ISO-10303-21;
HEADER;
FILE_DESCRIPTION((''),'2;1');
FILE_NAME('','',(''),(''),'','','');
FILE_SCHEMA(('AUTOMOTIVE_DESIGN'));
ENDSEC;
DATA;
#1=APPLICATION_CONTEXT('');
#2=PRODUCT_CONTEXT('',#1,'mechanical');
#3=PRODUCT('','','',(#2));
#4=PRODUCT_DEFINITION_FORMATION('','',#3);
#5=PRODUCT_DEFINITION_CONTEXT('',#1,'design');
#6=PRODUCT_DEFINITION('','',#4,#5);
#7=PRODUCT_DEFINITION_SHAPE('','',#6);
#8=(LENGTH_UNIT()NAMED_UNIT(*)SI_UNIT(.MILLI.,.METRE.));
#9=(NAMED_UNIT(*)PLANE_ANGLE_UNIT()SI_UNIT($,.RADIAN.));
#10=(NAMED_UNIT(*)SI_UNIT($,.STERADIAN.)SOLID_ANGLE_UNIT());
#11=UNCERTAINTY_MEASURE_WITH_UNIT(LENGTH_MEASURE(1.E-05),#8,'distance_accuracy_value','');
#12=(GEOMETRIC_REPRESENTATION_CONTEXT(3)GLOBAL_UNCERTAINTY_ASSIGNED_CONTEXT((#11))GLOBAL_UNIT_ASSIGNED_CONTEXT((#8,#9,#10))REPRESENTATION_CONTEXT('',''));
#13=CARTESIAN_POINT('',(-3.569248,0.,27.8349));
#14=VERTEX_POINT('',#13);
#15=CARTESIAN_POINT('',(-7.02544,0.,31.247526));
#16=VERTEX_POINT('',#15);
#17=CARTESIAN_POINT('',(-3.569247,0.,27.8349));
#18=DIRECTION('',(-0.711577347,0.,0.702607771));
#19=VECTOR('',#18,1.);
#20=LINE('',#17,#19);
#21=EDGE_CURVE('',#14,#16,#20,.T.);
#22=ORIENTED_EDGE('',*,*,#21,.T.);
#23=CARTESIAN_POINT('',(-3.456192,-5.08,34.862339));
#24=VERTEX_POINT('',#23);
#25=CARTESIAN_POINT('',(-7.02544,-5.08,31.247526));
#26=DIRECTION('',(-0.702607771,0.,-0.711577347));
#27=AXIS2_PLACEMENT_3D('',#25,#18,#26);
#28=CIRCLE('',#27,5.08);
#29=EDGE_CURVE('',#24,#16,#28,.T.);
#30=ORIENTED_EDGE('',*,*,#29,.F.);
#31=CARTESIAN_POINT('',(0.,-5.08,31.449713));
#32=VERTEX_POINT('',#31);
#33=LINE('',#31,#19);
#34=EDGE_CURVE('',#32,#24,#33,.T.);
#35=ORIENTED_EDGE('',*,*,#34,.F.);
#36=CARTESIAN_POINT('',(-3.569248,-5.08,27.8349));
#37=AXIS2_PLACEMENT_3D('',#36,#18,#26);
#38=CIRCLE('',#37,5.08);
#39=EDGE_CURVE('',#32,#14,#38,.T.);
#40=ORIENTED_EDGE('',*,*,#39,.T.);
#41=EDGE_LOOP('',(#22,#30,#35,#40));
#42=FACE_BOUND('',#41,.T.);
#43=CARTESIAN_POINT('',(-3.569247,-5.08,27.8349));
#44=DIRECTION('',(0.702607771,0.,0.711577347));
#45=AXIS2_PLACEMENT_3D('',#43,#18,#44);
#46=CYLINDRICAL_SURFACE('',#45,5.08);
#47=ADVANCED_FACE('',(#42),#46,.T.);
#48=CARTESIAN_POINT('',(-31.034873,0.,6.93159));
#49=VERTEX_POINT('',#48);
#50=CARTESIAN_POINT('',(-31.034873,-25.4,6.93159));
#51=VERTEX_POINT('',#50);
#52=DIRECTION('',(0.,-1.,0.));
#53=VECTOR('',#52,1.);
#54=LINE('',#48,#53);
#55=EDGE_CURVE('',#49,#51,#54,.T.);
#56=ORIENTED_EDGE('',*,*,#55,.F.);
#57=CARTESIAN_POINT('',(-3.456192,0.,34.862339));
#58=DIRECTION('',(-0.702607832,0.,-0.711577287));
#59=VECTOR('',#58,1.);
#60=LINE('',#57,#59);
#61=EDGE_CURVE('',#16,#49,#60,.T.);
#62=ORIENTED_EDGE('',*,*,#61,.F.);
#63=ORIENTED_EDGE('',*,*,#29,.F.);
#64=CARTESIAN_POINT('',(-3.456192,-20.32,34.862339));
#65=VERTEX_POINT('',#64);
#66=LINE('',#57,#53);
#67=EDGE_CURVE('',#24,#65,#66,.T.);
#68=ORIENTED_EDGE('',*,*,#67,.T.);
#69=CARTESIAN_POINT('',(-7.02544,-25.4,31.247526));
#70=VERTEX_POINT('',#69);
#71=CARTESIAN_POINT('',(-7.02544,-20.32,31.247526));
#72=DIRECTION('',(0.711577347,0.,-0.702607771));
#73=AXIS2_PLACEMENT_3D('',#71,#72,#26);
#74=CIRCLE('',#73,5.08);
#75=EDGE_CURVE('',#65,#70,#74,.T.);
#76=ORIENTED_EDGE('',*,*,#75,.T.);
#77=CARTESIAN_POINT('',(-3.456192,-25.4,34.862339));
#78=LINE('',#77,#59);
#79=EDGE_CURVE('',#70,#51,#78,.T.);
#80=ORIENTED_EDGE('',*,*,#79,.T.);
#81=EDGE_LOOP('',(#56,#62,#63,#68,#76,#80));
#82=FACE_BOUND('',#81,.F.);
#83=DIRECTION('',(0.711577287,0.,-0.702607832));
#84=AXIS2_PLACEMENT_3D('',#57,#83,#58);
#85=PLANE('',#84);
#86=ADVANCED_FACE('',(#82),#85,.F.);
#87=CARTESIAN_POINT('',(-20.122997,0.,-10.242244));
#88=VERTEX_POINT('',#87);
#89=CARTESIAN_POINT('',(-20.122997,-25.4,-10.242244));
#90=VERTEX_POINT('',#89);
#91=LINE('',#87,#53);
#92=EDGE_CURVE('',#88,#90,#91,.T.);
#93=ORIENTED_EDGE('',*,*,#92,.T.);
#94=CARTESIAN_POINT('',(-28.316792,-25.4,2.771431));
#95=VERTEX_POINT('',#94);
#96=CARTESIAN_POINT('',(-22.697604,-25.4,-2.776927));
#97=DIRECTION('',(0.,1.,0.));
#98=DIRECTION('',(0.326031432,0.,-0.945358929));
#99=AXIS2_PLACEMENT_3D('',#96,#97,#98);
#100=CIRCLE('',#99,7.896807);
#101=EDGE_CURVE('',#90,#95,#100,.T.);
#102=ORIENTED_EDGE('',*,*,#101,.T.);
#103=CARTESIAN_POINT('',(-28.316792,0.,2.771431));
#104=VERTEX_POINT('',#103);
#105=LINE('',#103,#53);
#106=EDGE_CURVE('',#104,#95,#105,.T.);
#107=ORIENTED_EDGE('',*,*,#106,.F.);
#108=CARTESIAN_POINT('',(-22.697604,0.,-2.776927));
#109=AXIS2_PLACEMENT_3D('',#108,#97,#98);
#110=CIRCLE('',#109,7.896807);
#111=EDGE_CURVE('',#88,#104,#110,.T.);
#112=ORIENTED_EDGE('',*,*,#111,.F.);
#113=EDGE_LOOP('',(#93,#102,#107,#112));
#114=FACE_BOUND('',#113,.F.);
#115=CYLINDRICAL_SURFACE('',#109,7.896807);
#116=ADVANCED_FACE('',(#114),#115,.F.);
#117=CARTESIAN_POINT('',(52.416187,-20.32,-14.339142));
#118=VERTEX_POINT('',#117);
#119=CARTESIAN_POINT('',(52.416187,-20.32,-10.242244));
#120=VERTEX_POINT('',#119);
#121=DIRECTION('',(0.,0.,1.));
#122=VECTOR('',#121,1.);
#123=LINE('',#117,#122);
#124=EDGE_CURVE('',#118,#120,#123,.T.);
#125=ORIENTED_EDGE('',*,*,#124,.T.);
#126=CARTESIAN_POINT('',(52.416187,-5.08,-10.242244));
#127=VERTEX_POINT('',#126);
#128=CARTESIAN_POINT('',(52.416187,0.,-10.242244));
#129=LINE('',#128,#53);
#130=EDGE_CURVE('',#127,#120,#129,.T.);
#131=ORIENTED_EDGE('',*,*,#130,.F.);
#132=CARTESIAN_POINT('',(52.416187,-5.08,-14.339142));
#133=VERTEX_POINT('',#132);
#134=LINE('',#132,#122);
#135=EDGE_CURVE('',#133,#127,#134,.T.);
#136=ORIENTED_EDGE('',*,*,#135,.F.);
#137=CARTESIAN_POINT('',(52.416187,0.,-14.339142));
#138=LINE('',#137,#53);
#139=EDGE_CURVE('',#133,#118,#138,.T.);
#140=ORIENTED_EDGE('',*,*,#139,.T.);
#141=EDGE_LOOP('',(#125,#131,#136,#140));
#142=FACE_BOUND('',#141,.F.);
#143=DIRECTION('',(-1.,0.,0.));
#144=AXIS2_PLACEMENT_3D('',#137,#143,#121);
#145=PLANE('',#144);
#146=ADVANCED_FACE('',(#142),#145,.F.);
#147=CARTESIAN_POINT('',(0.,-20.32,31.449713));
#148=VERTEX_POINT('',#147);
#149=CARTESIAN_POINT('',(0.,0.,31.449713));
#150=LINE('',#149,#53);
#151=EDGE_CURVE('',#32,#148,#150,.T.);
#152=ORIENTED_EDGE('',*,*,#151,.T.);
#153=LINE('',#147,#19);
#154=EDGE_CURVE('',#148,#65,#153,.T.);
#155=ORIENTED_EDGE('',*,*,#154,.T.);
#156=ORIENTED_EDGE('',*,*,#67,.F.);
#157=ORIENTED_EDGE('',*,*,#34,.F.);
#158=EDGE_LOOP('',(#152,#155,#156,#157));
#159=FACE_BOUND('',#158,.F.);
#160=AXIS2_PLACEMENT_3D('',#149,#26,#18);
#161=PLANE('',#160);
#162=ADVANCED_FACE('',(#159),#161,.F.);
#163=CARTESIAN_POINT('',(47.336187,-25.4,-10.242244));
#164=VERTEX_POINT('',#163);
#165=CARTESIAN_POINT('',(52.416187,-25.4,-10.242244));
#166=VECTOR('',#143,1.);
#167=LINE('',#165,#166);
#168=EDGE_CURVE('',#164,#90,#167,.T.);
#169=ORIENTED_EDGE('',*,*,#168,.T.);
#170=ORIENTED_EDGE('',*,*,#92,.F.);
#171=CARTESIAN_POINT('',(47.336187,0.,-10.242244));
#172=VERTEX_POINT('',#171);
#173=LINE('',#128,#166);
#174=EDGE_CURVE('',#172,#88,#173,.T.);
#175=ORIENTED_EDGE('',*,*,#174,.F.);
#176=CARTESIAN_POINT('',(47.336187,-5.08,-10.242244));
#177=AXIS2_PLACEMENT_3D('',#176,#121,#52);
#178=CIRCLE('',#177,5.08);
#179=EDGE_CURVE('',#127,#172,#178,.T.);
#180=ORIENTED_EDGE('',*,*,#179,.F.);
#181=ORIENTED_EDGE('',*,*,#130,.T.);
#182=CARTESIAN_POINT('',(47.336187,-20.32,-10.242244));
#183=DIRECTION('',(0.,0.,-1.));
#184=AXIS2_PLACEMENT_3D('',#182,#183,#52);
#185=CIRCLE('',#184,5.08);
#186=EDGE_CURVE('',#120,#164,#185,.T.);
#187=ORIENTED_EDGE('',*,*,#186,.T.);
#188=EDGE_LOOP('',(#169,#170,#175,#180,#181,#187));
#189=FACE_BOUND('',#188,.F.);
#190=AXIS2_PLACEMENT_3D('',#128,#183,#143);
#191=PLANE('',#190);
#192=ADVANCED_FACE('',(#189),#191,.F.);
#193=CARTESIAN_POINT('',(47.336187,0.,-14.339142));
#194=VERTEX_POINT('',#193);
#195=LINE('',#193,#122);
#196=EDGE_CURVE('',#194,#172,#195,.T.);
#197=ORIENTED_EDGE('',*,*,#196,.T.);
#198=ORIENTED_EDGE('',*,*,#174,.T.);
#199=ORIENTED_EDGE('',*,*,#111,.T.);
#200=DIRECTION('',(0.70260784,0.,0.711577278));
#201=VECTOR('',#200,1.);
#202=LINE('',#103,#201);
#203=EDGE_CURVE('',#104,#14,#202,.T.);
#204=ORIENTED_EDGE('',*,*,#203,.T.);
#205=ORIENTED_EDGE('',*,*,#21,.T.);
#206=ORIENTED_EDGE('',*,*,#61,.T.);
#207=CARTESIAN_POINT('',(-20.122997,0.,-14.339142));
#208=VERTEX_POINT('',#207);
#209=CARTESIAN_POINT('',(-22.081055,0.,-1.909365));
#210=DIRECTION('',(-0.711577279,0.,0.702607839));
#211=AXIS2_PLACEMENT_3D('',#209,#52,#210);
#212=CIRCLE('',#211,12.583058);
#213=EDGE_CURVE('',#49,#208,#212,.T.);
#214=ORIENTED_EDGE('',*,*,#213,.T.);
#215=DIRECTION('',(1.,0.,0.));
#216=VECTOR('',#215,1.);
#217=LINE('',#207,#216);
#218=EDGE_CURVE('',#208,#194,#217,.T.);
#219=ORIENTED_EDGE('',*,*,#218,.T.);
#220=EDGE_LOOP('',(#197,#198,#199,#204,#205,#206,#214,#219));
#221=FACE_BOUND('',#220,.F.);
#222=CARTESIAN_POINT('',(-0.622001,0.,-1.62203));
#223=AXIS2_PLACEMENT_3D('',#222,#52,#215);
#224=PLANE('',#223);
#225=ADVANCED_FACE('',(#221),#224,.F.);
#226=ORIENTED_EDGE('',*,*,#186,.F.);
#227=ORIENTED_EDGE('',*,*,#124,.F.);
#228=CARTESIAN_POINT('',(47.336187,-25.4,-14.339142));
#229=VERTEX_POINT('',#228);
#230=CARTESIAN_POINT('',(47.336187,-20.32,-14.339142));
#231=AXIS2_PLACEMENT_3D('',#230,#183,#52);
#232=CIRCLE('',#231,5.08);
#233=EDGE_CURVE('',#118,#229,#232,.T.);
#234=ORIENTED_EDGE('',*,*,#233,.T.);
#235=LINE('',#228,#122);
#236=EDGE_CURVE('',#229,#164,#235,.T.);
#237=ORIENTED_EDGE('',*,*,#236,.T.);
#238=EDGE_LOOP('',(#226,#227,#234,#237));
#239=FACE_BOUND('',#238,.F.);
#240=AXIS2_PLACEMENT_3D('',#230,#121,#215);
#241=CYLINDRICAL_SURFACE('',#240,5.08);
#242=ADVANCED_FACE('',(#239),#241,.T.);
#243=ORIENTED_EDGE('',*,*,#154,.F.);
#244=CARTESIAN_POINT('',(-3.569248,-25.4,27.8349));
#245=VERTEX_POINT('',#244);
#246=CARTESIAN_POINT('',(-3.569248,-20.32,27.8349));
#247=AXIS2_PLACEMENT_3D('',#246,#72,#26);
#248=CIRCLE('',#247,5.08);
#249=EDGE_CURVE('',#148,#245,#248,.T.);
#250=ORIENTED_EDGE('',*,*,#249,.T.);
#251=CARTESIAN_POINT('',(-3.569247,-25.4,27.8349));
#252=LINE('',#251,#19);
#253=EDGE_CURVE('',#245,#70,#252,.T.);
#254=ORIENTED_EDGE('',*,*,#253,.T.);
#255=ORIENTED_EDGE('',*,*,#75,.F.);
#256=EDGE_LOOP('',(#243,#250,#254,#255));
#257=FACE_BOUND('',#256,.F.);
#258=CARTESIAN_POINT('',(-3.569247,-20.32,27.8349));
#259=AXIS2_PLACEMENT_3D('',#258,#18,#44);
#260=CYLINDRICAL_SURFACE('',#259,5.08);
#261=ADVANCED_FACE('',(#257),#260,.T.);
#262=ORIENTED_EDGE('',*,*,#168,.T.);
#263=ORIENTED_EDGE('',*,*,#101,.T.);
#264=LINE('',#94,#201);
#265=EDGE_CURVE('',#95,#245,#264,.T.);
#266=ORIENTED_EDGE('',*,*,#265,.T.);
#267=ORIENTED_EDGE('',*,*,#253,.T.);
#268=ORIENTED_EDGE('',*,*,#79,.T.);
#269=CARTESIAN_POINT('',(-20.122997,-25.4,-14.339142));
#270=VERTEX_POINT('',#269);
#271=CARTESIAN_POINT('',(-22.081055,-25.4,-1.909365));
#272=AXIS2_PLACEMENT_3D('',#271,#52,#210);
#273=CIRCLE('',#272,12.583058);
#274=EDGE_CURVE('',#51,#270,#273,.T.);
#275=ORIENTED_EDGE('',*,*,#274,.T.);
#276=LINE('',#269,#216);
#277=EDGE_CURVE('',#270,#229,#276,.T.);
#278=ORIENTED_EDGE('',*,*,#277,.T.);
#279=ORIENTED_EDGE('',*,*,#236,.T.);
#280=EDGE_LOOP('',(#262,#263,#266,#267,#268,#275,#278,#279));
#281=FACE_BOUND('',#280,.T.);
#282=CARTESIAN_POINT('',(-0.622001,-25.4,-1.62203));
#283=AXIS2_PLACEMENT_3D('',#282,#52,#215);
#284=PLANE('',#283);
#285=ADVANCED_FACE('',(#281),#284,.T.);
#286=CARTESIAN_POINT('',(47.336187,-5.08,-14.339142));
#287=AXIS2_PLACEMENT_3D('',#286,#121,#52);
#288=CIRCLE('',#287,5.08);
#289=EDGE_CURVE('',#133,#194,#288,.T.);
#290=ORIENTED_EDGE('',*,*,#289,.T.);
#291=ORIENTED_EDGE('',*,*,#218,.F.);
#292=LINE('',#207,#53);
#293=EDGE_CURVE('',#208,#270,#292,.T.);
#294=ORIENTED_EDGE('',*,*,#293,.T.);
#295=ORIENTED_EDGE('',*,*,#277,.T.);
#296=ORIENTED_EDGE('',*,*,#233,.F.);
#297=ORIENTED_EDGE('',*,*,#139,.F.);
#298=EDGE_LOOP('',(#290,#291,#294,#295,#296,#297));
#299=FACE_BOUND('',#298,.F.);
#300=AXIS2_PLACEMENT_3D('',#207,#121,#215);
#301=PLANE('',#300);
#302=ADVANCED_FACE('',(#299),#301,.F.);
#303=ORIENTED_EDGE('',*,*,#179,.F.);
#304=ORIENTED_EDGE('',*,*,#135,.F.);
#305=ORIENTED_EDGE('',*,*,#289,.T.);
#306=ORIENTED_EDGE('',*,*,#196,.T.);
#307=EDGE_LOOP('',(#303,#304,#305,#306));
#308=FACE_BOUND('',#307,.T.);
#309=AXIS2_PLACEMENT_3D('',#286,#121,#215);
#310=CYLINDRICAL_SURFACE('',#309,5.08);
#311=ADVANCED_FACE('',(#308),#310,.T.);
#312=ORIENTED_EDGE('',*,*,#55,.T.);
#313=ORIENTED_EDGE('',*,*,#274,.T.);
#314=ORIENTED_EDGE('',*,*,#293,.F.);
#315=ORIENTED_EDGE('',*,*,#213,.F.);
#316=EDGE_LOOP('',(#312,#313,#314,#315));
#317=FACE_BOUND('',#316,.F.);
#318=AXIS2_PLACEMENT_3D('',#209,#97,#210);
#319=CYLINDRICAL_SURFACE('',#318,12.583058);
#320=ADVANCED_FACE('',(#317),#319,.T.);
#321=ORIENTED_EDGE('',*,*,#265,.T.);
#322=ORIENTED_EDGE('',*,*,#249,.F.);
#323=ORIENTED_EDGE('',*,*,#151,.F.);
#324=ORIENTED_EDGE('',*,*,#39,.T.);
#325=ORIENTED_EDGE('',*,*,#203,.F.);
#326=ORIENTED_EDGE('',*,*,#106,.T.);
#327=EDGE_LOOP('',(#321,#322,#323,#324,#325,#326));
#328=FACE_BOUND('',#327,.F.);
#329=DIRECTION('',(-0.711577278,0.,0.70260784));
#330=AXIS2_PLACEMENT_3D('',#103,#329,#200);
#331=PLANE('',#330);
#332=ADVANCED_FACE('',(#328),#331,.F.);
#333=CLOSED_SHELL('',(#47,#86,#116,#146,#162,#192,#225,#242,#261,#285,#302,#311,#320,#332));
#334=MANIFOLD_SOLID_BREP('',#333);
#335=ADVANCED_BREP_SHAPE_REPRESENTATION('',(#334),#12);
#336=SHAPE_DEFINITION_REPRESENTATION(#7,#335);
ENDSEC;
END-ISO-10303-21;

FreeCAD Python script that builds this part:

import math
import FreeCAD as App
import Part
import Sketcher

V = App.Vector
Q = App.Units.Quantity


def edges_at(feature, points):
    """Names of the edges that pass closest to the given points."""
    edges = feature.Shape.Edges
    near = lambda p: min(range(len(edges)), key=lambda i: edges[i].distToShape(Part.Vertex(*p))[0])
    return sorted({f"Edge{near(p) + 1}" for p in points})

doc = App.newDocument("Part")
body = doc.addObject("PartDesign::Body", "Body")

# Sketch on XZ plane
sketch1 = body.newObject("Sketcher::SketchObject", "Sketch")
sketch1.AttachmentSupport = (doc.getObject("XZ_Plane"), [""])
sketch1.MapMode = "FlatFace"
sketch1.addGeometry([
    Part.LineSegment(V(-28.3, 2.8, 0), V(0, 31.4, 0)),  # 0
    Part.LineSegment(V(0, 31.4, 0), V(-3.5, 34.9, 0)),  # 1
    Part.LineSegment(V(-3.5, 34.9, 0), V(-31, 6.9, 0)),  # 2
    Part.ArcOfCircle(Part.Circle(V(-22.1, -1.9, 0), V(0, 0, 1), 12.6), math.radians(135), math.radians(279)),  # 3
    Part.LineSegment(V(-20.1, -14.3, 0), V(52.4, -14.3, 0)),  # 4
    Part.LineSegment(V(52.4, -14.3, 0), V(52.4, -10.2, 0)),  # 5
    Part.LineSegment(V(52.4, -10.2, 0), V(-20.1, -10.2, 0)),  # 6
    Part.ArcOfCircle(Part.Circle(V(-22.7, -2.8, 0), V(0, 0, 1), 7.9), math.radians(135), math.radians(289)),  # 7
], False)
sketch1.addConstraint([
    Sketcher.Constraint("Coincident", 0, 2, 1, 1),
    Sketcher.Constraint("Coincident", 1, 2, 2, 1),
    Sketcher.Constraint("Tangent", 2, 2, 3, 1),
    Sketcher.Constraint("Coincident", 3, 2, 4, 1),
    Sketcher.Constraint("Coincident", 4, 2, 5, 1),
    Sketcher.Constraint("Coincident", 5, 2, 6, 1),
    Sketcher.Constraint("Coincident", 6, 2, 7, 2),
    Sketcher.Constraint("Tangent", 7, 1, 0, 1),
    Sketcher.Constraint("Horizontal", 4),
    Sketcher.Constraint("Vertical", 5),
    Sketcher.Constraint("Horizontal", 6),
    Sketcher.Constraint("PointOnObject", 0, 2, -2),
    Sketcher.Constraint("Perpendicular", 0, 1),
    Sketcher.Constraint("Perpendicular", 1, 2),
    Sketcher.Constraint("Vertical", 3, 2, 6, 2),
    Sketcher.Constraint("DistanceY", 5, 1, 5, 2, 4.096898),
    Sketcher.Constraint("Radius", 3, 12.583058),
    Sketcher.Constraint("Radius", 7, 7.896807),
    Sketcher.Constraint("DistanceX", 1, 2, 4, 2, Q("2.1997 in")),
    Sketcher.Constraint("DistanceX", 4, 1, 4, 2, 72.539184),
    Sketcher.Constraint("DistanceY", -1, 1, 1, 2, 34.862339),
    Sketcher.Constraint("DistanceY", -1, 1, 2, 2, 6.93159),
    Sketcher.Constraint("DistanceX", 7, 1, -1, 1, 28.316792),
    Sketcher.Constraint("DistanceY", -1, 1, 7, 1, 2.771431),
])
pad1 = body.newObject("PartDesign::Pad", "Pad")
pad1.Profile = sketch1
pad1.Length = Q("1 in")
doc.recompute()

fillet = body.newObject("PartDesign::Fillet", "Fillet")
fillet.Base = (pad1, edges_at(pad1, [
    (-1.728, -25.4, 33.156),
    (-1.728, 0, 33.156),
    (52.416, -25.4, -12.291),
    (52.416, 0, -12.291),
]))
fillet.Radius = Q("0.2 in")

doc.recompute()
